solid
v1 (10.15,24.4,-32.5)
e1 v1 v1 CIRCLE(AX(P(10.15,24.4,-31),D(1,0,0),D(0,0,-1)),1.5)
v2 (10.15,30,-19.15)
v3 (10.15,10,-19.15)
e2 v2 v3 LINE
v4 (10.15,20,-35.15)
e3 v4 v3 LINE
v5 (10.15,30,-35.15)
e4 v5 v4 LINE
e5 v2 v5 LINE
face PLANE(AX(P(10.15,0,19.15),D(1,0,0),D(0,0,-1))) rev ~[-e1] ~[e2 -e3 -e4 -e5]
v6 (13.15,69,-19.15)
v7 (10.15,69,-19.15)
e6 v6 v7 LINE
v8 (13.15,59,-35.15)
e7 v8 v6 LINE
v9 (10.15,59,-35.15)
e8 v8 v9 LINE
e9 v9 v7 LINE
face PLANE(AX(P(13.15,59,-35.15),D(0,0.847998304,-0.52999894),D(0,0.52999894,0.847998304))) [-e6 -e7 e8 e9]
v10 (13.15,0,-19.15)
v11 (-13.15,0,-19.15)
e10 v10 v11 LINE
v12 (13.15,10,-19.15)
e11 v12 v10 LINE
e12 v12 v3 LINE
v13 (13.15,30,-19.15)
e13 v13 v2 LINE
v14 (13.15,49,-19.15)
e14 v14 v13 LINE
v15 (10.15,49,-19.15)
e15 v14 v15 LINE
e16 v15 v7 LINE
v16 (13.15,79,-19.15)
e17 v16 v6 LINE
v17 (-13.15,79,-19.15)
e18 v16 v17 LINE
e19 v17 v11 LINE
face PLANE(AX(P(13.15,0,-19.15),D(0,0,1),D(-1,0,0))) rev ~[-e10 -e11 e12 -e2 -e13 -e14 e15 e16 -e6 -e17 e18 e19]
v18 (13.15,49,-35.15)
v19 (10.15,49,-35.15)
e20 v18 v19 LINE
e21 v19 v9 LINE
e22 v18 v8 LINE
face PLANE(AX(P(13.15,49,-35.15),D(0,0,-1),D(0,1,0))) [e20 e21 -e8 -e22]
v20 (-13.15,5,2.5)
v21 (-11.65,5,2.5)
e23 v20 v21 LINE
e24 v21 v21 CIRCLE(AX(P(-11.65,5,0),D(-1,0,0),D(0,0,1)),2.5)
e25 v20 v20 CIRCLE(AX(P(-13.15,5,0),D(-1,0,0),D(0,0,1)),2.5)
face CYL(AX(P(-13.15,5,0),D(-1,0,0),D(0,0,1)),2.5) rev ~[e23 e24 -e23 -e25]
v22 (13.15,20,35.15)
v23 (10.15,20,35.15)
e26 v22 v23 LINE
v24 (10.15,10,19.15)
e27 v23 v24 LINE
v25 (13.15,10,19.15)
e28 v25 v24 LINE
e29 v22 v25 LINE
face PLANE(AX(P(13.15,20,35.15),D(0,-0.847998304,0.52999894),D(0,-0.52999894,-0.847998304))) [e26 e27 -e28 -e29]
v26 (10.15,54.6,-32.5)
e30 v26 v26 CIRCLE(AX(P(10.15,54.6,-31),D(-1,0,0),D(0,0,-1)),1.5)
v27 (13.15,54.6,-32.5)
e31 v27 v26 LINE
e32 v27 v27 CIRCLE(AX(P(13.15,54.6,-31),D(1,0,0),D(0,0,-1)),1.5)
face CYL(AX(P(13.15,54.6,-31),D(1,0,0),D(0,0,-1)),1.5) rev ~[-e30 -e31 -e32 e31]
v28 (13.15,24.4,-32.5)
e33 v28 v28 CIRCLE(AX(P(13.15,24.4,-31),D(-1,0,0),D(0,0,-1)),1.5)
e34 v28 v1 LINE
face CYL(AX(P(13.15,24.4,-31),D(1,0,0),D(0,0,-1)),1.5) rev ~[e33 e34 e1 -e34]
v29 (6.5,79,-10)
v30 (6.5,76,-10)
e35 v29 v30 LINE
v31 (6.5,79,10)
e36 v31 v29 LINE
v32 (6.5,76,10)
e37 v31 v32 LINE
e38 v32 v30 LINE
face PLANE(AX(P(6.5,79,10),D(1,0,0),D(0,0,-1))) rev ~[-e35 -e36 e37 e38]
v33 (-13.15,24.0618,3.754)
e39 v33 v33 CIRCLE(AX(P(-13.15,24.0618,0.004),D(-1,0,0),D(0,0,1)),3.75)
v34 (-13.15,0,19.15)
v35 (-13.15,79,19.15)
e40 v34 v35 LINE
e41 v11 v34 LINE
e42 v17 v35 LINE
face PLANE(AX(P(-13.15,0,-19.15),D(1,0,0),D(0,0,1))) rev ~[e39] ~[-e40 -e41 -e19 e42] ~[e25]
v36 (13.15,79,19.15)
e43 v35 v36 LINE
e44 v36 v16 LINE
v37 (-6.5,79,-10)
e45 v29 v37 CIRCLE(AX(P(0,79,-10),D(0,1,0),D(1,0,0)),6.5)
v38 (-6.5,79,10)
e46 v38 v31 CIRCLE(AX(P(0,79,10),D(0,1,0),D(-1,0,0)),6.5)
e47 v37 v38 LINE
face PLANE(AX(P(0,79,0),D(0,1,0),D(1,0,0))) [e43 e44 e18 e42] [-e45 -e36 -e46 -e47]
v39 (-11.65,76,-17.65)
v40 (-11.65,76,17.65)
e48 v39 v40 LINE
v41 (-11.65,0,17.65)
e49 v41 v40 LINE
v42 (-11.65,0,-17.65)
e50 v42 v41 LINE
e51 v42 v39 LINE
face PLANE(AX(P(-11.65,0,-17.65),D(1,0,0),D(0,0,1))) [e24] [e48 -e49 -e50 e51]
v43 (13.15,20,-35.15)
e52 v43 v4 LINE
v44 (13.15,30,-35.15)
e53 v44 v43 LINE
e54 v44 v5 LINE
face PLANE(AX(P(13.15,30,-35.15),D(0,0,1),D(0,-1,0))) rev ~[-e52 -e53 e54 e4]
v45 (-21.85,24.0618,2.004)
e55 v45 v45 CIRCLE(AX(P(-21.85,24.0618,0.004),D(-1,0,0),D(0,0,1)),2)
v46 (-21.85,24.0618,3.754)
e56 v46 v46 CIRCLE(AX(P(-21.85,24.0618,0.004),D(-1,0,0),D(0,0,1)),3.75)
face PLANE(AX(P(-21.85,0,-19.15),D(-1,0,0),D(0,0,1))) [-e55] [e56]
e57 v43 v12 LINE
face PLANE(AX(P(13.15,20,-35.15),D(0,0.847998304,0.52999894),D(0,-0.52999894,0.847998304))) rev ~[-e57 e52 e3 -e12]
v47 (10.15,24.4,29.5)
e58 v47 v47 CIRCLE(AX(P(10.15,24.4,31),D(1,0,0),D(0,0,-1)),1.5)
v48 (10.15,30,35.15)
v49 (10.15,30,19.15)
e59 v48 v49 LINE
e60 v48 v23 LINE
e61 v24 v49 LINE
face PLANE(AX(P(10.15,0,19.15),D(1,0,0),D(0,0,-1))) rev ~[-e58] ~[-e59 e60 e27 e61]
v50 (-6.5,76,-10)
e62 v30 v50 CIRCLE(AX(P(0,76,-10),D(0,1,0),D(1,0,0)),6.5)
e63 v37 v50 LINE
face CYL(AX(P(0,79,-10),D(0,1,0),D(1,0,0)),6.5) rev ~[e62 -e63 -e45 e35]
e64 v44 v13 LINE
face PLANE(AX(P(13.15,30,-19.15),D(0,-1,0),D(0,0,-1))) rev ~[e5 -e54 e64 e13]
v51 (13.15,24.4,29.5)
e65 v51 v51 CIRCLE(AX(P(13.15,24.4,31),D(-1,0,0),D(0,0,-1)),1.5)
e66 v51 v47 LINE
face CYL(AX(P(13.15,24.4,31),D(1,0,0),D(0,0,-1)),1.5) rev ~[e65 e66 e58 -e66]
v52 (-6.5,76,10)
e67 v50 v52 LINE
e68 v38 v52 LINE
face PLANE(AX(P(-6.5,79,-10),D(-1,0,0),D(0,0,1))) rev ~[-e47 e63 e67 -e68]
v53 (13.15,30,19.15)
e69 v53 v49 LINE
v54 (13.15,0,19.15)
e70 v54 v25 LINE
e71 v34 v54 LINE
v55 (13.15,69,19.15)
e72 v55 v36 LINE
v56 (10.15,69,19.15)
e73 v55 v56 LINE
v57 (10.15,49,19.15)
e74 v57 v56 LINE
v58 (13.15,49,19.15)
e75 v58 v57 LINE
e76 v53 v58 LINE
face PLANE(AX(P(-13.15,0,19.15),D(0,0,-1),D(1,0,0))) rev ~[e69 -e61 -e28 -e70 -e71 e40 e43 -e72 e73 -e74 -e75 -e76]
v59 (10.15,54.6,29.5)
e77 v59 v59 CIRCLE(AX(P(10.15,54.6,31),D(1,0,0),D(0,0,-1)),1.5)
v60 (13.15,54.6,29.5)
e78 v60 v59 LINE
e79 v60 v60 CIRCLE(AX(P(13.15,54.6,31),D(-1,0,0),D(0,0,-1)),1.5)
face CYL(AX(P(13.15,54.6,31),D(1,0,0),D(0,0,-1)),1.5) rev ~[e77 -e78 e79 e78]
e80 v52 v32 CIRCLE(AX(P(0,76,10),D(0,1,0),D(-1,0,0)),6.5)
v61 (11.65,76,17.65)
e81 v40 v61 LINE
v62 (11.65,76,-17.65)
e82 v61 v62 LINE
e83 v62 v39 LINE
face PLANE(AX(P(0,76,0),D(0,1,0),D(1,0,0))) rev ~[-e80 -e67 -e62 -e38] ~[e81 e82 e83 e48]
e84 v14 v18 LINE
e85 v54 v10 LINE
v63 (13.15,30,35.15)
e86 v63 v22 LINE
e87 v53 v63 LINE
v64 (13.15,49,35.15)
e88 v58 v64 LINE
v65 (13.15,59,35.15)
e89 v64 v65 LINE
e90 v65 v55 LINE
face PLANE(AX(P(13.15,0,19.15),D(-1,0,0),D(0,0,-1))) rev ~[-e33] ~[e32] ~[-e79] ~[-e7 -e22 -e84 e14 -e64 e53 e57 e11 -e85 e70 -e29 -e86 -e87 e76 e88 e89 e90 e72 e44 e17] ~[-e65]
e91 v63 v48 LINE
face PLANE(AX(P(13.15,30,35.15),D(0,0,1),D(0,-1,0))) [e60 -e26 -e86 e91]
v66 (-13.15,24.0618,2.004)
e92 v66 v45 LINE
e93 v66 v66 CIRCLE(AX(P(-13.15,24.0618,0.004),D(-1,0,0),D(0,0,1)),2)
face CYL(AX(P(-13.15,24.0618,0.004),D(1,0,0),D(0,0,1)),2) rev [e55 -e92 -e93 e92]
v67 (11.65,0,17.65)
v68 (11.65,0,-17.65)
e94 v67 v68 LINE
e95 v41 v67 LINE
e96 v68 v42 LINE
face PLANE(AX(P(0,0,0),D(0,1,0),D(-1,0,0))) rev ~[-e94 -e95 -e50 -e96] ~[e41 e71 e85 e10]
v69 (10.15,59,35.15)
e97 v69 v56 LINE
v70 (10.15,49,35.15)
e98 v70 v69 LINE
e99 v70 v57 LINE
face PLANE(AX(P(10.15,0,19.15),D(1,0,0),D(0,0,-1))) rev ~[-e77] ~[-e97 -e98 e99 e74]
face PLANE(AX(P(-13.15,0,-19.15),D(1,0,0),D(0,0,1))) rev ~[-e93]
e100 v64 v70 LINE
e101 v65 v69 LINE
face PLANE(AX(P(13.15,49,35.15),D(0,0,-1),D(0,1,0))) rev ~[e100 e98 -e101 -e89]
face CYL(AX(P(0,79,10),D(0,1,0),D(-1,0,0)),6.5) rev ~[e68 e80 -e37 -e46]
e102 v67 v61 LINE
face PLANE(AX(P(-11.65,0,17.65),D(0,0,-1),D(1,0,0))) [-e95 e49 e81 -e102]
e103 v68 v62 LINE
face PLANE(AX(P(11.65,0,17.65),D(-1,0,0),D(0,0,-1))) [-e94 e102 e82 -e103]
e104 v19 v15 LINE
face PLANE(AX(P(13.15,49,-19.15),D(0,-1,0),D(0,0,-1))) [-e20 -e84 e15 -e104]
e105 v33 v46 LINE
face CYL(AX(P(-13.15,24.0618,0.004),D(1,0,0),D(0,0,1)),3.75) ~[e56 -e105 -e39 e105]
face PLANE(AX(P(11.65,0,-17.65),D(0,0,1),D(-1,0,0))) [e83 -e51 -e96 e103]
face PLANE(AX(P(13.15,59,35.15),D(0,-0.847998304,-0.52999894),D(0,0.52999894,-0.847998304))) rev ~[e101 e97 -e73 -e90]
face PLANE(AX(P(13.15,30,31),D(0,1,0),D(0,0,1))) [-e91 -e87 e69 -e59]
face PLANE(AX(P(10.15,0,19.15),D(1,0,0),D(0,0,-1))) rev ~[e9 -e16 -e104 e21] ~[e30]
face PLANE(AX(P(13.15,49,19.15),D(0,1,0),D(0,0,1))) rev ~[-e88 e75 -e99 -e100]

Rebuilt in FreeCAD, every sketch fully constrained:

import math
import FreeCAD as App
import Part
import Sketcher
from FreeCAD import Vector
Q = App.Units.Quantity


def add_polygon(sketch, points):
    """Adds a closed chain of lines whose ends are joined by coincident constraints."""
    first, n = sketch.GeometryCount, len(points)
    for a, b in zip(points, points[1:] + points[:1]):
        sketch.addGeometry(Part.LineSegment(App.Vector(*a, 0), App.Vector(*b, 0)), False)
    for i in range(n):
        sketch.addConstraint(Sketcher.Constraint("Coincident", first + i, 2, first + (i + 1) % n, 1))

doc = App.newDocument("Part")
body = doc.addObject("PartDesign::Body", "Body")

# Sketch on XZ plane
sketch1 = body.newObject("Sketcher::SketchObject", "Sketch")
sketch1.AttachmentSupport = (doc.getObject("XZ_Plane"), [""])
sketch1.MapMode = "FlatFace"
add_polygon(sketch1, [(-13, -19), (-13, 19), (13, 19), (13, -19)])  # lines 0-3
add_polygon(sketch1, [(12, 18), (-12, 18), (-12, -18), (12, -18)])  # lines 4-7
sketch1.addConstraint([
    Sketcher.Constraint("Vertical", 0),
    Sketcher.Constraint("Horizontal", 1),
    Sketcher.Constraint("Vertical", 2),
    Sketcher.Constraint("Horizontal", 3),
    Sketcher.Constraint("Horizontal", 4),
    Sketcher.Constraint("Vertical", 5),
    Sketcher.Constraint("Horizontal", 6),
    Sketcher.Constraint("Vertical", 7),
    Sketcher.Constraint("Symmetric", 0, 2, 2, 2, -1, 1),
    Sketcher.Constraint("Symmetric", 4, 2, 6, 2, -1, 1),
    Sketcher.Constraint("DistanceX", 1, 1, 1, 2, Q("26.3 mm")),
    Sketcher.Constraint("DistanceX", 4, 2, 4, 1, Q("23.3 mm")),
    Sketcher.Constraint("DistanceY", 0, 1, 0, 2, Q("38.3 mm")),
    Sketcher.Constraint("DistanceY", 5, 2, 5, 1, Q("35.3 mm")),
])
pad1 = body.newObject("PartDesign::Pad", "Pad")
pad1.Profile = sketch1
pad1.Length = 76
pad1.Reversed = True

# Sketch on XZ plane
sketch2 = body.newObject("Sketcher::SketchObject", "Sketch001")
sketch2.AttachmentSupport = (doc.getObject("XZ_Plane"), [""])
sketch2.MapMode = "FlatFace"
sketch2.AttachmentOffset = App.Placement(Vector(0, 0, -76), App.Rotation())
add_polygon(sketch2, [(13, 19), (13, -19), (-13, -19), (-13, 19)])  # lines 0-3
sketch2.addConstraint([
    Sketcher.Constraint("Vertical", 0),
    Sketcher.Constraint("Horizontal", 1),
    Sketcher.Constraint("Vertical", 2),
    Sketcher.Constraint("Horizontal", 3),
    Sketcher.Constraint("Symmetric", 0, 2, 2, 2, -1, 1),
    Sketcher.Constraint("DistanceX", 1, 2, 1, 1, Q("26.3 mm")),
    Sketcher.Constraint("DistanceY", 0, 2, 0, 1, Q("38.3 mm")),
])
pad2 = body.newObject("PartDesign::Pad", "Pad001")
pad2.Profile = sketch2
pad2.Length = 3
pad2.Reversed = True

# Sketch on XZ plane
sketch3 = body.newObject("Sketcher::SketchObject", "Sketch002")
sketch3.AttachmentSupport = (doc.getObject("XZ_Plane"), [""])
sketch3.MapMode = "FlatFace"
sketch3.AttachmentOffset = App.Placement(Vector(0, 0, -79), App.Rotation())
sketch3.addGeometry([
    Part.ArcOfCircle(Part.Circle(Vector(0, -10, 0), Vector(0, 0, 1), 6), math.radians(180), math.radians(360)),
    Part.LineSegment(Vector(-6, -10, 0), Vector(-6, 10, 0)),
    Part.ArcOfCircle(Part.Circle(Vector(0, 10, 0), Vector(0, 0, 1), 6), math.radians(0), math.radians(180)),
    Part.LineSegment(Vector(6, 10, 0), Vector(6, -10, 0)),
], False)
sketch3.addConstraint([
    Sketcher.Constraint("Tangent", 0, 1, 1, 1),
    Sketcher.Constraint("Tangent", 1, 2, 2, 2),
    Sketcher.Constraint("Tangent", 2, 1, 3, 1),
    Sketcher.Constraint("Tangent", 3, 2, 0, 2),
    Sketcher.Constraint("Vertical", 1),
    Sketcher.Constraint("Vertical", 3),
    Sketcher.Constraint("Symmetric", 0, 3, 2, 3, -1, 1),
    Sketcher.Constraint("Radius", 0, Q("6.5 mm")),
    Sketcher.Constraint("DistanceY", 1, 1, 1, 2, Q("20 mm")),
])
pocket1 = body.newObject("PartDesign::Pocket", "Pocket")
pocket1.Profile = sketch3
pocket1.Length = 3
pocket1.Reversed = True

# Sketch on YZ plane
sketch4 = body.newObject("Sketcher::SketchObject", "Sketch003")
sketch4.AttachmentSupport = (doc.getObject("YZ_Plane"), [""])
sketch4.MapMode = "FlatFace"
sketch4.AttachmentOffset = App.Placement(Vector(0, 0, 13.15), App.Rotation())
add_polygon(sketch4, [(20, 35.1), (10, 19.1), (30, 19.1), (30, 35.1)])  # lines 0-3
sketch4.addGeometry(Part.Circle(Vector(24.4, 31, 0), Vector(0, 0, 1), 1.5), False)  # 4
add_polygon(sketch4, [(10, -19.1), (20, -35.1), (30, -35.1), (30, -19.1)])  # lines 5-8
sketch4.addGeometry(Part.Circle(Vector(24.4, -31, 0), Vector(0, 0, 1), 1.5), False)  # 9
add_polygon(sketch4, [(49, 19.1), (69, 19.1), (59, 35.1), (49, 35.1)])  # lines 10-13
sketch4.addGeometry(Part.Circle(Vector(54.6, 31, 0), Vector(0, 0, 1), 1.5), False)  # 14
add_polygon(sketch4, [(49, -19.1), (49, -35.1), (59, -35.1), (69, -19.1)])  # lines 15-18
sketch4.addGeometry(Part.Circle(Vector(54.6, -31, 0), Vector(0, 0, 1), 1.5), False)  # 19
sketch4.addConstraint([
    Sketcher.Constraint("Horizontal", 1),
    Sketcher.Constraint("Vertical", 2),
    Sketcher.Constraint("Horizontal", 3),
    Sketcher.Constraint("Horizontal", 6),
    Sketcher.Constraint("Vertical", 7),
    Sketcher.Constraint("Horizontal", 8),
    Sketcher.Constraint("Horizontal", 10),
    Sketcher.Constraint("Horizontal", 12),
    Sketcher.Constraint("Vertical", 13),
    Sketcher.Constraint("Vertical", 15),
    Sketcher.Constraint("Horizontal", 16),
    Sketcher.Constraint("Horizontal", 18),
    Sketcher.Constraint("Equal", 4, 9),
    Sketcher.Constraint("Equal", 9, 14),
    Sketcher.Constraint("Equal", 14, 19),
    Sketcher.Constraint("Symmetric", 4, 3, 9, 3, -1),
    Sketcher.Constraint("Symmetric", 14, 3, 19, 3, -1),
    Sketcher.Constraint("Symmetric", 3, 2, 5, 2, -1),
    Sketcher.Constraint("Symmetric", 1, 2, 7, 2, -1),
    Sketcher.Constraint("Symmetric", 12, 2, 15, 2, -1),
    Sketcher.Constraint("Symmetric", 10, 2, 17, 2, -1),
    Sketcher.Constraint("Parallel", 5, 11),
    Sketcher.Constraint("Parallel", 0, 17),
    Sketcher.Constraint("Horizontal", 4, 3, 14, 3),
    Sketcher.Constraint("Horizontal", 1, 2, 10, 2),
    Sketcher.Constraint("Horizontal", 3, 2, 11, 2),
    Sketcher.Constraint("Vertical", 0, 2, 8, 2),
    Sketcher.Constraint("Equal", 8, 10),
    Sketcher.Constraint("Diameter", 4, Q("3 mm")),
    Sketcher.Constraint("DistanceX", 3, 2, 3, 1, Q("10 mm")),
    Sketcher.Constraint("DistanceX", -1, 1, 0, 2, Q("10 mm")),
    Sketcher.Constraint("DistanceX", -1, 1, 1, 2, Q("30 mm")),
    Sketcher.Constraint("DistanceY", 9, 3, 4, 3, Q("62 mm")),
    Sketcher.Constraint("DistanceX", -1, 1, 4, 3, Q("24.4 mm")),
    Sketcher.Constraint("DistanceX", 4, 3, 14, 3, Q("30.2 mm")),
    Sketcher.Constraint("DistanceY", 2, 1, 2, 2, Q("16 mm")),
    Sketcher.Constraint("DistanceY", 0, 2, 4, 3, Q("11.85 mm")),
    Sketcher.Constraint("DistanceX", -1, 1, 10, 2, Q("69 mm")),
])
pad3 = body.newObject("PartDesign::Pad", "Pad002")
pad3.Profile = sketch4
pad3.Length = 3
pad3.Reversed = True

# Sketch on YZ plane
sketch5 = body.newObject("Sketcher::SketchObject", "Sketch004")
sketch5.AttachmentSupport = (doc.getObject("YZ_Plane"), [""])
sketch5.MapMode = "FlatFace"
sketch5.AttachmentOffset = App.Placement(Vector(0, 0, -13.15), App.Rotation())
sketch5.addGeometry(Part.Circle(Vector(5, 0, 0), Vector(0, 0, 1), 2.5), False)
sketch5.addConstraint([
    Sketcher.Constraint("PointOnObject", 0, 3, -1),
    Sketcher.Constraint("Diameter", 0, Q("5 mm")),
    Sketcher.Constraint("DistanceX", -1, 1, 0, 3, Q("5 mm")),
])
pocket2 = body.newObject("PartDesign::Pocket", "Pocket001")
pocket2.Profile = sketch5
pocket2.Length = 13.5
pocket2.Reversed = True

# Sketch on YZ plane
sketch6 = body.newObject("Sketcher::SketchObject", "Sketch005")
sketch6.AttachmentSupport = (doc.getObject("YZ_Plane"), [""])
sketch6.MapMode = "FlatFace"
sketch6.AttachmentOffset = App.Placement(Vector(0, 0, -13.15), App.Rotation())
sketch6.addGeometry([
    Part.Circle(Vector(24.1, 0, 0), Vector(0, 0, 1), 3.8),
    Part.Circle(Vector(24.1, 0, 0), Vector(0, 0, 1), 2),
], False)
sketch6.addConstraint([
    Sketcher.Constraint("Coincident", 1, 3, 0, 3),
    Sketcher.Constraint("Diameter", 1, Q("4 mm")),
    Sketcher.Constraint("Diameter", 0, Q("7.5 mm")),
    Sketcher.Constraint("DistanceY", -1, 1, 0, 3, Q("0.004 mm")),
    Sketcher.Constraint("DistanceX", -1, 1, 0, 3, Q("24.0618 mm")),
])
pad4 = body.newObject("PartDesign::Pad", "Pad003")
pad4.Profile = sketch6
pad4.Length = 8.7
pad4.Reversed = True

doc.recompute()
